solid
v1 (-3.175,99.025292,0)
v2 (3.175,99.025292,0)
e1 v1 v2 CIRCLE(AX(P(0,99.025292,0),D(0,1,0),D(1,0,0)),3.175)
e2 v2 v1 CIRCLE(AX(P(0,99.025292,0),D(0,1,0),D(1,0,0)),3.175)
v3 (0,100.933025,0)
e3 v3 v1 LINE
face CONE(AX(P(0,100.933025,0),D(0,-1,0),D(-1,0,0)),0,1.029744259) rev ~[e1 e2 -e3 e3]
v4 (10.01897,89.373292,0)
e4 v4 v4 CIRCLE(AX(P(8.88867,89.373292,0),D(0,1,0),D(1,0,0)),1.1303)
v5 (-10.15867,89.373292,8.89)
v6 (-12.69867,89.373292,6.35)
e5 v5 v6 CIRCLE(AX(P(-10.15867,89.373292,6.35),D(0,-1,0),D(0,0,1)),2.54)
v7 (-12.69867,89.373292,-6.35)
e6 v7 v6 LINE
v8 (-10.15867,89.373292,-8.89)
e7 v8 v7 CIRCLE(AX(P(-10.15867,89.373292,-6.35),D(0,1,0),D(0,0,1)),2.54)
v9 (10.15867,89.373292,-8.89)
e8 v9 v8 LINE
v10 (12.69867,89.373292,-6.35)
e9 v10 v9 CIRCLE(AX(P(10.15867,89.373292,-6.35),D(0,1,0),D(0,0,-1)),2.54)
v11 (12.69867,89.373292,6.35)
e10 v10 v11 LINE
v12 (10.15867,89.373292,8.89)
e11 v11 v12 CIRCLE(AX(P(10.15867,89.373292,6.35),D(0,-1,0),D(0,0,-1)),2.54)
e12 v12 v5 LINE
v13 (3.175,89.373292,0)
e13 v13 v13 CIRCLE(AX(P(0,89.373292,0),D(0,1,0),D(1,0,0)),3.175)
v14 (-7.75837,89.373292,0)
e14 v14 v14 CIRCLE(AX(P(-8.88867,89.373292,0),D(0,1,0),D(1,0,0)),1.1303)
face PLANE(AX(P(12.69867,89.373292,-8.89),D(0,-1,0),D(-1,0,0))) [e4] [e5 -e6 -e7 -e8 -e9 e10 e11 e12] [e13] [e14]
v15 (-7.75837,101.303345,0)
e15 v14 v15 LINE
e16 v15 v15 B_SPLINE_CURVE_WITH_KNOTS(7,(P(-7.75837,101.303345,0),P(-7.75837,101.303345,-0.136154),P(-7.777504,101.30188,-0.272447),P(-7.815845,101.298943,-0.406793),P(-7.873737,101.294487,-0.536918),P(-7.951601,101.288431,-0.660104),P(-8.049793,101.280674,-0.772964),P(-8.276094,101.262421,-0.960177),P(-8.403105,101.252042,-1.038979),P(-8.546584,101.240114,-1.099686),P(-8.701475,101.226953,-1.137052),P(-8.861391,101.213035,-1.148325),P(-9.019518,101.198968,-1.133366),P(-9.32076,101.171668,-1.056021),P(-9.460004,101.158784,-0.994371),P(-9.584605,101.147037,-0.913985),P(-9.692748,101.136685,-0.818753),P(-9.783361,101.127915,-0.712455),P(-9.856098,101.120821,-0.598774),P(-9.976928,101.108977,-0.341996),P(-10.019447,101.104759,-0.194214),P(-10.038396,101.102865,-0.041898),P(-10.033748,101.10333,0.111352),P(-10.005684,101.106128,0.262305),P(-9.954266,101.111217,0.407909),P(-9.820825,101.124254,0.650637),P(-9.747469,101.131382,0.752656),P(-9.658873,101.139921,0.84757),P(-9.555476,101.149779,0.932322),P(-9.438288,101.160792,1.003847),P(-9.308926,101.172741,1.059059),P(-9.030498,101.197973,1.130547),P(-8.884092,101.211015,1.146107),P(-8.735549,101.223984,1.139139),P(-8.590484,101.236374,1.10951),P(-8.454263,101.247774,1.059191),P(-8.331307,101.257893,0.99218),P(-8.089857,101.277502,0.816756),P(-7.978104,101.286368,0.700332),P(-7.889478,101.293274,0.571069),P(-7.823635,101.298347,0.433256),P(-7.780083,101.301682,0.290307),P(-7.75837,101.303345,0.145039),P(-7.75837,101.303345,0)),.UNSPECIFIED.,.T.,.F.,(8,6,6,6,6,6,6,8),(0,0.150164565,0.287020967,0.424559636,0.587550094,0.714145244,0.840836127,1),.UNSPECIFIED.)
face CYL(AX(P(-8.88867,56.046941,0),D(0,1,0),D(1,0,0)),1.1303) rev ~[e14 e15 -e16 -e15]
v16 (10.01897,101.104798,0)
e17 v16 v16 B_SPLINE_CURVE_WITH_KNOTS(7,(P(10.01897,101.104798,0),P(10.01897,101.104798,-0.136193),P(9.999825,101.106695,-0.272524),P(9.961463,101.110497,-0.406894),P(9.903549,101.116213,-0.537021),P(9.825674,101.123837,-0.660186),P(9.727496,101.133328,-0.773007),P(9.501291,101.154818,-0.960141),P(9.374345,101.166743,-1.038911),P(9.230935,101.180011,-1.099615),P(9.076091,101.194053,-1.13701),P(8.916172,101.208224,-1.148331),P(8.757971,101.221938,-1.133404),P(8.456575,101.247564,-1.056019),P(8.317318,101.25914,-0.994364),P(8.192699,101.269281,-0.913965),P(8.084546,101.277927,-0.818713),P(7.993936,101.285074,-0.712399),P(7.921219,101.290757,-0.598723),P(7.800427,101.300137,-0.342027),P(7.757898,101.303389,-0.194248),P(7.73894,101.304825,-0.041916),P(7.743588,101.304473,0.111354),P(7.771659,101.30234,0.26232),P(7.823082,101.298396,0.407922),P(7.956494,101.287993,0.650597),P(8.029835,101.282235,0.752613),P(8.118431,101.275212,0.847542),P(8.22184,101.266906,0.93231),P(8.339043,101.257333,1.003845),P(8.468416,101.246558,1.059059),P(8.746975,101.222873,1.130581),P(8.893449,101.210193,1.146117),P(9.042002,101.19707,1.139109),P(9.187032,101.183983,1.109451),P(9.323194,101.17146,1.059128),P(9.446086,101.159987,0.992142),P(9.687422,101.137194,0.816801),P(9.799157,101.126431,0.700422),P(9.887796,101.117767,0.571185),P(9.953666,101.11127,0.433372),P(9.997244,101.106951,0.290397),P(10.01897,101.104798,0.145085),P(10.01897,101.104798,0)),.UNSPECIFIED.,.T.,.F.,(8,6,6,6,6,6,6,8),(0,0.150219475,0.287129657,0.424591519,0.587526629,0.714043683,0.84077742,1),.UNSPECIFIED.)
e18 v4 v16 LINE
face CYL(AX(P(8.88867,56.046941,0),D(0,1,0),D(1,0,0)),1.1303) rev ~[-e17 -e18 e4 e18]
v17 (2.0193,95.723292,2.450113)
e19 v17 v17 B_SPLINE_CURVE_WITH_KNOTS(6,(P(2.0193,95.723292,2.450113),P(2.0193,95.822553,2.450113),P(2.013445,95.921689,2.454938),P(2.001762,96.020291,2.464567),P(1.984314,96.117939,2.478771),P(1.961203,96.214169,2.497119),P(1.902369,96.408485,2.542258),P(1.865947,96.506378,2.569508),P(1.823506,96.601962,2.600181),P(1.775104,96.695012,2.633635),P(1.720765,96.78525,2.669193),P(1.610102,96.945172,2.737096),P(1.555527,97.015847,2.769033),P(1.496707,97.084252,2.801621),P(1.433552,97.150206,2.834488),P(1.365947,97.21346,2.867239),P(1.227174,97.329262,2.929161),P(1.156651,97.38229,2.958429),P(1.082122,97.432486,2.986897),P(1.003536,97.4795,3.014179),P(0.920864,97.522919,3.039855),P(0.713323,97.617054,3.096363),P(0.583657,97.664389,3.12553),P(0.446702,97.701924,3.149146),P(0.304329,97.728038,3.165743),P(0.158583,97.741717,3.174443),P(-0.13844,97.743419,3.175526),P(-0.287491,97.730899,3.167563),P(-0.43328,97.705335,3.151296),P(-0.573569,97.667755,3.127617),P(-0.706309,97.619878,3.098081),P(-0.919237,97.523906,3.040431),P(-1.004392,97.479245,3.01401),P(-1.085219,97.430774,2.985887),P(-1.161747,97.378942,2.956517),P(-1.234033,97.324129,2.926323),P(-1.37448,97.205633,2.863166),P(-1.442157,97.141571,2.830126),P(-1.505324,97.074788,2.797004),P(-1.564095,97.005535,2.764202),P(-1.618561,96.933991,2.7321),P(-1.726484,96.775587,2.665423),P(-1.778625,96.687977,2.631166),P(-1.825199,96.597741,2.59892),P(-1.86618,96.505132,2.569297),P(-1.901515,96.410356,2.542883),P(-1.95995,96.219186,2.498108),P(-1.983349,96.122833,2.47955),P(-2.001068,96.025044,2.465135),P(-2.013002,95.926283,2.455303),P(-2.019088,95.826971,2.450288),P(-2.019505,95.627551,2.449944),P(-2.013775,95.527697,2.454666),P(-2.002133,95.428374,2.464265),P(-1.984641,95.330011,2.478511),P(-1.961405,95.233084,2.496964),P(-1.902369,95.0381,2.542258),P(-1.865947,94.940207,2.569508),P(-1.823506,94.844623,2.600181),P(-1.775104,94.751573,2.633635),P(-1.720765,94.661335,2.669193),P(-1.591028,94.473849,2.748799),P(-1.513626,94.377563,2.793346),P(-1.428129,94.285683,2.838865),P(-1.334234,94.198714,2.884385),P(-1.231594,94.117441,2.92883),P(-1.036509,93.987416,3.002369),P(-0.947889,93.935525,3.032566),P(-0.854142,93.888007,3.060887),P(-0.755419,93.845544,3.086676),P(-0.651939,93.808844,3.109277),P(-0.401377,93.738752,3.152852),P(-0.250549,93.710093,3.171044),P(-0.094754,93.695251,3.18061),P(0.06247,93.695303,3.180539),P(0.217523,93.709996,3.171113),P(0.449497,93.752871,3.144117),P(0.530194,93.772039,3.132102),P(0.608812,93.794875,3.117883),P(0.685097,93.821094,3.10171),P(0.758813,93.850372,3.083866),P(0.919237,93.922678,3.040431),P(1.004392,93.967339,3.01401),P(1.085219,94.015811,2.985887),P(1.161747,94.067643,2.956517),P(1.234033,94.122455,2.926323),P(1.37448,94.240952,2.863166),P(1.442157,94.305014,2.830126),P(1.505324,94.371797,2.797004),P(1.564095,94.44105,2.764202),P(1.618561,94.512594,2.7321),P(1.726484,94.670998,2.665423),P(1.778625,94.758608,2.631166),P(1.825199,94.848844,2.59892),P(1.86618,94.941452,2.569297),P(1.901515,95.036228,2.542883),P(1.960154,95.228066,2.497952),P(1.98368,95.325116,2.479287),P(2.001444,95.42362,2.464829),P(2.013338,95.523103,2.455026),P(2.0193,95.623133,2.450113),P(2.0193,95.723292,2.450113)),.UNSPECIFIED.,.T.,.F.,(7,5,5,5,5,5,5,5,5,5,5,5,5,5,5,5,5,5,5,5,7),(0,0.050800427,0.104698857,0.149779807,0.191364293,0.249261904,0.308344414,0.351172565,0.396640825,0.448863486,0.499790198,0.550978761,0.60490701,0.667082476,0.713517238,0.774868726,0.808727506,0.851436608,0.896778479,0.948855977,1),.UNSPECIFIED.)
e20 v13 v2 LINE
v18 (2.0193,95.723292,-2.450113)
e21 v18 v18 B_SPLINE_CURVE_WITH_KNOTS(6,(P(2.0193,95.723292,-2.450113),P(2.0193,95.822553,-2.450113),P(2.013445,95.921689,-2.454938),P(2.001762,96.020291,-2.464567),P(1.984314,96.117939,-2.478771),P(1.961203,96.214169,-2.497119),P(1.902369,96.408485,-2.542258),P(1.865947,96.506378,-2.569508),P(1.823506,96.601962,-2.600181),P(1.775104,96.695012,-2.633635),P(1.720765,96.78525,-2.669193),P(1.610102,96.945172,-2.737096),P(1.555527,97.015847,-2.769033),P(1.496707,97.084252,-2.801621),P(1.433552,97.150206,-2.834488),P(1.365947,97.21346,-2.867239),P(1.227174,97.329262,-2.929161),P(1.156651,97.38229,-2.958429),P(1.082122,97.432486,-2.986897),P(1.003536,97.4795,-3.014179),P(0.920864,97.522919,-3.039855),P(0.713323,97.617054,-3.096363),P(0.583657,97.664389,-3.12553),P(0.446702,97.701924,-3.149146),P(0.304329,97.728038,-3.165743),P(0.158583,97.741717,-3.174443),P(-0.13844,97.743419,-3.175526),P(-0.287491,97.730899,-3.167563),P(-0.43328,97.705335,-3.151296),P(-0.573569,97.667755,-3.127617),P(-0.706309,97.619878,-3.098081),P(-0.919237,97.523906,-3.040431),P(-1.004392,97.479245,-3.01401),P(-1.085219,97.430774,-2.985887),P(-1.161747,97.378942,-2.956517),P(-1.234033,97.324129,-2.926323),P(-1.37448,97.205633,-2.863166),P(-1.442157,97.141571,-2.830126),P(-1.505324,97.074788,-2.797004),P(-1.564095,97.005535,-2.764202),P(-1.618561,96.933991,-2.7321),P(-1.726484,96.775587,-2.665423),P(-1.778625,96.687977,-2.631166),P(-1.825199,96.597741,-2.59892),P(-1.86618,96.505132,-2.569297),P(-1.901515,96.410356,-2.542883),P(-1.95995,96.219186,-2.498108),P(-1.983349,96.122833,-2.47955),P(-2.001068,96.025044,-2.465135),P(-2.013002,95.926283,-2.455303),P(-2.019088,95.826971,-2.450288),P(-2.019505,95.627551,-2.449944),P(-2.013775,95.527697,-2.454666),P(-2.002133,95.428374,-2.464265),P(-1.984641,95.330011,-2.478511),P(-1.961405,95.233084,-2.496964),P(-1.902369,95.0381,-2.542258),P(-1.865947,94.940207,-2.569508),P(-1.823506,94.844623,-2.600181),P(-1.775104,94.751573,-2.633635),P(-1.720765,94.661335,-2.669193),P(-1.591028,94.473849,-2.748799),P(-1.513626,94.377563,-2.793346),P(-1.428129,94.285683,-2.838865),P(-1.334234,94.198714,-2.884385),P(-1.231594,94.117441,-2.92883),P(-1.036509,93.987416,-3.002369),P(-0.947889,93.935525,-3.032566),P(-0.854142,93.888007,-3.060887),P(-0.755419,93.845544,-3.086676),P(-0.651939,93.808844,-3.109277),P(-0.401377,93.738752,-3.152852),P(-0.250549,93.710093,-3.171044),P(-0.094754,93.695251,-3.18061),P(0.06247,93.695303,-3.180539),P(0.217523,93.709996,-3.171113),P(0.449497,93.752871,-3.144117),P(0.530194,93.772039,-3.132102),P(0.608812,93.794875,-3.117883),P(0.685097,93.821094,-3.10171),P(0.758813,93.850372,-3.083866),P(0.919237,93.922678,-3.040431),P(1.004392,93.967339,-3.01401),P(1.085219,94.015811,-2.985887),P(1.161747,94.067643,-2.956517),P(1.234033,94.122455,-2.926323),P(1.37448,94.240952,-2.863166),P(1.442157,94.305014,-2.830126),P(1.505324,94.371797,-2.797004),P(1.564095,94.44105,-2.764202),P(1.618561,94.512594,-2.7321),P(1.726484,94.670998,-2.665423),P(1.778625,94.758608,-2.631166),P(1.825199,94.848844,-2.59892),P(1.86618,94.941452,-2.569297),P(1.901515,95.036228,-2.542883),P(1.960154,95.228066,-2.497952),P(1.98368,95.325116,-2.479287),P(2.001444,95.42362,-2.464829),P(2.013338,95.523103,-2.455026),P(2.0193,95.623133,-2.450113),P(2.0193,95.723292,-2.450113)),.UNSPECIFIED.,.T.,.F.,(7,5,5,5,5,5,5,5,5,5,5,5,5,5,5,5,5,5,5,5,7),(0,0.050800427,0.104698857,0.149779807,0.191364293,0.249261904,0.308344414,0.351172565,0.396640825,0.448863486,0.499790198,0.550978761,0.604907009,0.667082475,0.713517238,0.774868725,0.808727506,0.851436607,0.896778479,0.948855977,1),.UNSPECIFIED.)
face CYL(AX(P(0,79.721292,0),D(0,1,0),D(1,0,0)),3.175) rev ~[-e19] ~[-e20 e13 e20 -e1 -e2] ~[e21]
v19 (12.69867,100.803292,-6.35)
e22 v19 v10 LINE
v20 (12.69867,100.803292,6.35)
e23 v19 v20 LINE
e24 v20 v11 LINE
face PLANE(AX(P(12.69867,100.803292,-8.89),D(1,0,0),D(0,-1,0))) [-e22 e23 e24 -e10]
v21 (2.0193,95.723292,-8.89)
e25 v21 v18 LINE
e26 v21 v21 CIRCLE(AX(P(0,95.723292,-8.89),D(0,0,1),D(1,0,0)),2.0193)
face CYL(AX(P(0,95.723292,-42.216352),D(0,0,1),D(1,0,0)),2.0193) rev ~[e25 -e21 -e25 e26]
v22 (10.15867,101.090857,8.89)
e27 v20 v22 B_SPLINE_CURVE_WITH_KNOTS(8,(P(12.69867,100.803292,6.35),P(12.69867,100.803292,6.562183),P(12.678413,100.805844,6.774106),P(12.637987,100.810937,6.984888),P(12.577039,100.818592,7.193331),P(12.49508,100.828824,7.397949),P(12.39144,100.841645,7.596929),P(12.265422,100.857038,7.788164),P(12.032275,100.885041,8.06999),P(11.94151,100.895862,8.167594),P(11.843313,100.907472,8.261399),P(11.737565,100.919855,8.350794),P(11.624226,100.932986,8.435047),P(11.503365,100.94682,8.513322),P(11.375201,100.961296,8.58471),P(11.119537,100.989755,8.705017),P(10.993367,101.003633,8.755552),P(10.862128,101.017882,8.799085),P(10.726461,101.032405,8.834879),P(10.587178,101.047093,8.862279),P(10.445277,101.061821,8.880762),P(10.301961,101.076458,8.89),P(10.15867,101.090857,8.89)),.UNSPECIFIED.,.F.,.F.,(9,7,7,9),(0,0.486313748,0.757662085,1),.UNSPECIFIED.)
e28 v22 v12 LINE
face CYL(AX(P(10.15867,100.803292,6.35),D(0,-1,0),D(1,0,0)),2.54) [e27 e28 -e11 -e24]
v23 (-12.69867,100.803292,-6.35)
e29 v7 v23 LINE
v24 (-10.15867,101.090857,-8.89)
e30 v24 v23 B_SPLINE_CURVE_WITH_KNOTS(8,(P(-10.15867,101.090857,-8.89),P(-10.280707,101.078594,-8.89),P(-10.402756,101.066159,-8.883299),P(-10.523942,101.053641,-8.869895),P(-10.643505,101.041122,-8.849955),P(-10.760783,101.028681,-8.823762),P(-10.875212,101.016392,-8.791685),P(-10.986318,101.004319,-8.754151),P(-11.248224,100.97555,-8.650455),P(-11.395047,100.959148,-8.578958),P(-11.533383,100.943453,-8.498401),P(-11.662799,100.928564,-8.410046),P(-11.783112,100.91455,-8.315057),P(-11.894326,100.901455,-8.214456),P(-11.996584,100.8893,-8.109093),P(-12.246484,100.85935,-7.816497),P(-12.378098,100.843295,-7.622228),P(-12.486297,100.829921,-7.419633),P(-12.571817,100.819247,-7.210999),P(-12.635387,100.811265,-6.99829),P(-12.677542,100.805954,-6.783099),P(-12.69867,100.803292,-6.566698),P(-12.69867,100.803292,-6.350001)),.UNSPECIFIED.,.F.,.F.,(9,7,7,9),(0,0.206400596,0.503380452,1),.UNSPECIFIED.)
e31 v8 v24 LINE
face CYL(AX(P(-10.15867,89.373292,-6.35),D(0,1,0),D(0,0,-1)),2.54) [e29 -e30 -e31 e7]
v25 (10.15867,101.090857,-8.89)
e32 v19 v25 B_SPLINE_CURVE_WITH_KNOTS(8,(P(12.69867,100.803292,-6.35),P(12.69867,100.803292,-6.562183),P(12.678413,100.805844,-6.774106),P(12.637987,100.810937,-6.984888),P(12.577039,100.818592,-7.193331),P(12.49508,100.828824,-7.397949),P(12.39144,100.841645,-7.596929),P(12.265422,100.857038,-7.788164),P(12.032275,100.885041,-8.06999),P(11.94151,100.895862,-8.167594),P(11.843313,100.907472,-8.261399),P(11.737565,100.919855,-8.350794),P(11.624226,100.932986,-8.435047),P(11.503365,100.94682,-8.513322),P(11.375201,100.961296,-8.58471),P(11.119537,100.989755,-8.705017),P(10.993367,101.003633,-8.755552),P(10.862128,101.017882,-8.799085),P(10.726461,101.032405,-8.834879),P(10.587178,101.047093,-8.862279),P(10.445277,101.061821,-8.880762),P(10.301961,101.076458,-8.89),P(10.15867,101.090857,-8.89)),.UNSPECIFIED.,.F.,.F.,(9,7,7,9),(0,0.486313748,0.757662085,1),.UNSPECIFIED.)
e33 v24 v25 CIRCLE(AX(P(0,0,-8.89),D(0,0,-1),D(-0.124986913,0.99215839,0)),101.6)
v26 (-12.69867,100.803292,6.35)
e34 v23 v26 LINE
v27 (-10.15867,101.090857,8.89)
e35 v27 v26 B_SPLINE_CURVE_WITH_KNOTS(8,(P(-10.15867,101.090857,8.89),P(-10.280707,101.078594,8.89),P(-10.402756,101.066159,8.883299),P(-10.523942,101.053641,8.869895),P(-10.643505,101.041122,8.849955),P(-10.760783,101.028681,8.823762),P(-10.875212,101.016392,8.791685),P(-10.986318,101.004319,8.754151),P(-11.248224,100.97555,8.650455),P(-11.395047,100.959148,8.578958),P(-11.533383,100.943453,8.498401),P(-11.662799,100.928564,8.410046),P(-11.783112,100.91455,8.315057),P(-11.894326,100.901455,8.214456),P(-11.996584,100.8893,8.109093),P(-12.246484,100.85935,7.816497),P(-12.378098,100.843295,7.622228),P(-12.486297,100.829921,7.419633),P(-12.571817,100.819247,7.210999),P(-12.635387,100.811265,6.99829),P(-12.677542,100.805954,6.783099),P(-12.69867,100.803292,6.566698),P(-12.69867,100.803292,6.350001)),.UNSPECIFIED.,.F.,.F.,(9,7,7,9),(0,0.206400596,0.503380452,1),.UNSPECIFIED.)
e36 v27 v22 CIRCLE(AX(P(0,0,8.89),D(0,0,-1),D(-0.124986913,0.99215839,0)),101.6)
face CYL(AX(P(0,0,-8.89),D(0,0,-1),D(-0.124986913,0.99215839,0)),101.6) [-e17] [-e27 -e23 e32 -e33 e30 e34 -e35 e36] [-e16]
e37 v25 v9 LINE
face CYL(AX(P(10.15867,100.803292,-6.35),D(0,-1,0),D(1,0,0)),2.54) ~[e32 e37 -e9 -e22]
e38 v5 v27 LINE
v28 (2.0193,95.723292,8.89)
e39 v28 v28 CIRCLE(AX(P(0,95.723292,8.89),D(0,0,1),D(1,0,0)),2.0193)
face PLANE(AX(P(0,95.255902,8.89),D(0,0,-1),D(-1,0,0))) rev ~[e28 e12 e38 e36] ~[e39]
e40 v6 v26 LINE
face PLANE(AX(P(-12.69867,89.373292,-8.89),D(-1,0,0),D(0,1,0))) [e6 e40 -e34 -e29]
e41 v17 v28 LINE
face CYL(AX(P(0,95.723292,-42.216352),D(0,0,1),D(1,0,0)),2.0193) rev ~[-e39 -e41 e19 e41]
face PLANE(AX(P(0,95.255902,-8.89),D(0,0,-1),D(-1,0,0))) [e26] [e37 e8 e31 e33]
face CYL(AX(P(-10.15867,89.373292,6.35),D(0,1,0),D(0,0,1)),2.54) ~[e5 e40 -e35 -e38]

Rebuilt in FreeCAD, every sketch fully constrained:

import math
import FreeCAD as App
import Part
import Sketcher
Q = App.Units.Quantity


def edges_at(feature, points):
    """Names of the edges that pass closest to the given points."""
    edges = feature.Shape.Edges
    near = lambda p: min(range(len(edges)), key=lambda i: edges[i].distToShape(Part.Vertex(*p))[0])
    return sorted({f"Edge{near(p) + 1}" for p in points})

doc = App.newDocument("Part")
body = doc.addObject("PartDesign::Body", "Body")

sketch1 = body.newObject("Sketcher::SketchObject", "Sketch")
sketch1.AttachmentSupport = (doc.getObject("XY_Plane"), [""])
sketch1.MapMode = "FlatFace"
sketch1.addGeometry([
    Part.LineSegment(App.Vector(13, 89, 0), App.Vector(13, 101, 0)),
    Part.ArcOfCircle(Part.Circle(App.Vector(0, 0, 0), App.Vector(0, 0, 1), 102), math.radians(82.82), math.radians(97.18)),
    Part.LineSegment(App.Vector(-13, 101, 0), App.Vector(-13, 89, 0)),
    Part.LineSegment(App.Vector(-13, 89, 0), App.Vector(13, 89, 0)),
], False)
sketch1.addConstraint([
    Sketcher.Constraint("Coincident", 0, 2, 1, 1),
    Sketcher.Constraint("Coincident", 1, 2, 2, 1),
    Sketcher.Constraint("Coincident", 2, 2, 3, 1),
    Sketcher.Constraint("Coincident", 3, 2, 0, 1),
    Sketcher.Constraint("Vertical", 0),
    Sketcher.Constraint("Vertical", 2),
    Sketcher.Constraint("Horizontal", 3),
    Sketcher.Constraint("Coincident", 1, 3, -1, 1),
    Sketcher.Constraint("Horizontal", 0, 2, 1, 2),
    Sketcher.Constraint("Radius", 1, Q("4 in")),
    Sketcher.Constraint("DistanceY", 0, 1, 0, 2, Q("0.45 in")),
    Sketcher.Constraint("DistanceX", 3, 1, 3, 2, 25.397341),
])
pad1 = body.newObject("PartDesign::Pad", "Pad")
pad1.Profile = sketch1
pad1.Type = "TwoLengths"
pad1.Length = Q("0.35 in")
pad1.Length2 = Q("0.35 in")

sketch2 = body.newObject("Sketcher::SketchObject", "Sketch001")
sketch2.AttachmentSupport = (doc.getObject("XZ_Plane"), [""])
sketch2.MapMode = "FlatFace"
sketch2.AttachmentOffset = App.Placement(App.Vector(0, 0, -89.373292), App.Rotation())
sketch2.addGeometry(Part.Circle(App.Vector(0, 0, 0), App.Vector(0, 0, 1), 3.2), False)
sketch2.addConstraint([
    Sketcher.Constraint("Coincident", 0, 3, -1, 1),
    Sketcher.Constraint("Diameter", 0, Q("0.25 in")),
])
doc.recompute()
hole = body.newObject("PartDesign::Hole", "Hole")
hole.Profile = sketch2
hole.ThreadType = "None"
hole.Diameter = Q("0.25 in")
hole.DepthType = "Dimension"
hole.Depth = Q("0.38 in")
hole.DrillPoint = "Angled"
hole.DrillPointAngle = 118

sketch3 = body.newObject("Sketcher::SketchObject", "Sketch002")
sketch3.AttachmentSupport = (doc.getObject("XZ_Plane"), [""])
sketch3.MapMode = "FlatFace"
sketch3.AttachmentOffset = App.Placement(App.Vector(0, 0, -89.373292), App.Rotation())
sketch3.addGeometry([
    Part.Circle(App.Vector(-8.9, 0, 0), App.Vector(0, 0, 1), 1.1),
    Part.Circle(App.Vector(8.9, 0, 0), App.Vector(0, 0, 1), 1.1),
], False)
sketch3.addConstraint([
    Sketcher.Constraint("Equal", 0, 1),
    Sketcher.Constraint("Symmetric", 0, 3, 1, 3, -1, 1),
    Sketcher.Constraint("PointOnObject", 0, 3, -1),
    Sketcher.Constraint("Diameter", 0, Q("0.089 in")),
    Sketcher.Constraint("DistanceX", 0, 3, -1, 1, 8.88867),
])
doc.recompute()
hole2 = body.newObject("PartDesign::Hole", "Hole001")
hole2.Profile = sketch3
hole2.ThreadType = "None"
hole2.Diameter = Q("0.089 in")
hole2.DepthType = "ThroughAll"
doc.recompute()

fillet = body.newObject("PartDesign::Fillet", "Fillet")
fillet.Base = (hole2, edges_at(hole2, [
    (12.699, 95.088, -8.89),
    (-12.699, 95.088, 8.89),
    (12.699, 95.088, 8.89),
    (-12.699, 95.088, -8.89),
]))
fillet.Radius = Q("0.1 in")

sketch4 = body.newObject("Sketcher::SketchObject", "Sketch003")
sketch4.AttachmentSupport = (doc.getObject("XY_Plane"), [""])
sketch4.MapMode = "FlatFace"
sketch4.AttachmentOffset = App.Placement(App.Vector(0, 0, -0.35 * 25.4), App.Rotation())
sketch4.addGeometry(Part.Circle(App.Vector(0, 95.7, 0), App.Vector(0, 0, 1), 2), False)
sketch4.addConstraint([
    Sketcher.Constraint("PointOnObject", 0, 3, -2),
    Sketcher.Constraint("Diameter", 0, Q("0.159 in")),
    Sketcher.Constraint("DistanceY", -1, 1, 0, 3, 95.723292),
])
doc.recompute()
hole3 = body.newObject("PartDesign::Hole", "Hole002")
hole3.Profile = sketch4
hole3.ThreadType = "None"
hole3.Diameter = Q("0.159 in")
hole3.DepthType = "ThroughAll"
hole3.Reversed = True

doc.recompute()
